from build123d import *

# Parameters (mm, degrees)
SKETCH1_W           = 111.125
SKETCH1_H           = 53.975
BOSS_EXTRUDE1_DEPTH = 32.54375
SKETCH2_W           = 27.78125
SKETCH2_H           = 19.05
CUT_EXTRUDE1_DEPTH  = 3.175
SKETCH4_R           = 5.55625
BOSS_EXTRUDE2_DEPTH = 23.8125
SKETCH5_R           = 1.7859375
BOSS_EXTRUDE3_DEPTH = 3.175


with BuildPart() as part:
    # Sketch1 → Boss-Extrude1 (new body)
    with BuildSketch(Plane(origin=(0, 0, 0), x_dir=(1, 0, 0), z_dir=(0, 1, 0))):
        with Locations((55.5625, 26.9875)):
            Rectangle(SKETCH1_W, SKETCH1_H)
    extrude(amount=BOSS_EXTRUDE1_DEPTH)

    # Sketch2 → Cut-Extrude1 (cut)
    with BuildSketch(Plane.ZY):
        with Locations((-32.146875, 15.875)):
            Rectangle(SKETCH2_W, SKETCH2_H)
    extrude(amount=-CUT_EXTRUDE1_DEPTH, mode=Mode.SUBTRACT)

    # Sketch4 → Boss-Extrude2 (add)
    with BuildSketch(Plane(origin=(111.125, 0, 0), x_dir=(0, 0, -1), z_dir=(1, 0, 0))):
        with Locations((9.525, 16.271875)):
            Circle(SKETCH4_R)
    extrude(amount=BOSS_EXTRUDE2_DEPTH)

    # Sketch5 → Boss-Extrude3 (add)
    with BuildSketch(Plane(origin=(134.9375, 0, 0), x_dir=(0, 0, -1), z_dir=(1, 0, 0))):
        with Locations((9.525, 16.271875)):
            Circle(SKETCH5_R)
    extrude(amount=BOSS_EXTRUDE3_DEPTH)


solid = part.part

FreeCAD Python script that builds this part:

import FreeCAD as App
import Part
import Sketcher

V = App.Vector
Q = App.Units.Quantity

doc = App.newDocument("Part")
body = doc.addObject("PartDesign::Body", "Body")

# Sketch on XZ plane
sketch1 = body.newObject("Sketcher::SketchObject", "Sketch")
sketch1.AttachmentSupport = (doc.getObject("XZ_Plane"), [""])
sketch1.MapMode = "FlatFace"
sketch1.addGeometry([
    Part.LineSegment(V(0, -54, 0), V(0, 0, 0)),
    Part.LineSegment(V(0, 0, 0), V(111, 0, 0)),
    Part.LineSegment(V(111, 0, 0), V(111, -54, 0)),
    Part.LineSegment(V(111, -54, 0), V(0, -54, 0)),
], False)
sketch1.addConstraint([
    Sketcher.Constraint("Coincident", 0, 2, 1, 1),
    Sketcher.Constraint("Coincident", 1, 2, 2, 1),
    Sketcher.Constraint("Coincident", 2, 2, 3, 1),
    Sketcher.Constraint("Coincident", 3, 2, 0, 1),
    Sketcher.Constraint("Vertical", 0),
    Sketcher.Constraint("Horizontal", 1),
    Sketcher.Constraint("Vertical", 2),
    Sketcher.Constraint("Horizontal", 3),
    Sketcher.Constraint("Coincident", 0, 2, -1, 1),
    Sketcher.Constraint("DistanceX", 1, 1, 1, 2, Q("4.375 in")),
    Sketcher.Constraint("DistanceY", 0, 1, 0, 2, Q("2.125 in")),
])
pad1 = body.newObject("PartDesign::Pad", "Pad")
pad1.Profile = sketch1
pad1.Length = Q("1.28125 in")
pad1.Reversed = True

# Sketch on YZ plane
sketch2 = body.newObject("Sketcher::SketchObject", "Sketch001")
sketch2.AttachmentSupport = (doc.getObject("YZ_Plane"), [""])
sketch2.MapMode = "FlatFace"
sketch2.addGeometry([
    Part.LineSegment(V(25, -46, 0), V(6, -46, 0)),
    Part.LineSegment(V(6, -46, 0), V(6, -18, 0)),
    Part.LineSegment(V(6, -18, 0), V(25, -18, 0)),
    Part.LineSegment(V(25, -18, 0), V(25, -46, 0)),
], False)
sketch2.addConstraint([
    Sketcher.Constraint("Coincident", 0, 2, 1, 1),
    Sketcher.Constraint("Coincident", 1, 2, 2, 1),
    Sketcher.Constraint("Coincident", 2, 2, 3, 1),
    Sketcher.Constraint("Coincident", 3, 2, 0, 1),
    Sketcher.Constraint("Horizontal", 0),
    Sketcher.Constraint("Vertical", 1),
    Sketcher.Constraint("Horizontal", 2),
    Sketcher.Constraint("Vertical", 3),
    Sketcher.Constraint("DistanceX", -1, 1, 2, 2, Q("1 in")),
    Sketcher.Constraint("DistanceX", 0, 2, 0, 1, Q("0.75 in")),
    Sketcher.Constraint("DistanceY", 1, 1, 1, 2, Q("1.09375 in")),
    Sketcher.Constraint("DistanceY", 0, 2, -1, 1, Q("1.8125 in")),
])
pocket1 = body.newObject("PartDesign::Pocket", "Pocket")
pocket1.Profile = sketch2
pocket1.Length = Q("0.125 in")
pocket1.Reversed = True

# Sketch on YZ plane
sketch3 = body.newObject("Sketcher::SketchObject", "Sketch002")
sketch3.AttachmentSupport = (doc.getObject("YZ_Plane"), [""])
sketch3.MapMode = "FlatFace"
sketch3.AttachmentOffset = App.Placement(V(0, 0, 4.375 * 25.4), App.Rotation())
sketch3.addGeometry(Part.Circle(V(16, -10, 0), V(0, 0, 1), 6), False)
sketch3.addConstraint([
    Sketcher.Constraint("Diameter", 0, Q("0.4375 in")),
    Sketcher.Constraint("DistanceX", -1, 1, 0, 3, Q("0.640625 in")),
    Sketcher.Constraint("DistanceY", 0, 3, -1, 1, Q("0.375 in")),
])
pad2 = body.newObject("PartDesign::Pad", "Pad001")
pad2.Profile = sketch3
pad2.Length = Q("0.9375 in")

# Sketch on YZ plane
sketch4 = body.newObject("Sketcher::SketchObject", "Sketch003")
sketch4.AttachmentSupport = (doc.getObject("YZ_Plane"), [""])
sketch4.MapMode = "FlatFace"
sketch4.AttachmentOffset = App.Placement(V(0, 0, 5.3125 * 25.4), App.Rotation())
sketch4.addGeometry(Part.Circle(V(16.3, -9.5, 0), V(0, 0, 1), 1.8), False)
sketch4.addConstraint([
    Sketcher.Constraint("Diameter", 0, Q("0.140625 in")),
    Sketcher.Constraint("DistanceX", -1, 1, 0, 3, Q("0.640625 in")),
    Sketcher.Constraint("DistanceY", 0, 3, -1, 1, Q("0.375 in")),
])
pad3 = body.newObject("PartDesign::Pad", "Pad002")
pad3.Profile = sketch4
pad3.Length = Q("0.125 in")

doc.recompute()
